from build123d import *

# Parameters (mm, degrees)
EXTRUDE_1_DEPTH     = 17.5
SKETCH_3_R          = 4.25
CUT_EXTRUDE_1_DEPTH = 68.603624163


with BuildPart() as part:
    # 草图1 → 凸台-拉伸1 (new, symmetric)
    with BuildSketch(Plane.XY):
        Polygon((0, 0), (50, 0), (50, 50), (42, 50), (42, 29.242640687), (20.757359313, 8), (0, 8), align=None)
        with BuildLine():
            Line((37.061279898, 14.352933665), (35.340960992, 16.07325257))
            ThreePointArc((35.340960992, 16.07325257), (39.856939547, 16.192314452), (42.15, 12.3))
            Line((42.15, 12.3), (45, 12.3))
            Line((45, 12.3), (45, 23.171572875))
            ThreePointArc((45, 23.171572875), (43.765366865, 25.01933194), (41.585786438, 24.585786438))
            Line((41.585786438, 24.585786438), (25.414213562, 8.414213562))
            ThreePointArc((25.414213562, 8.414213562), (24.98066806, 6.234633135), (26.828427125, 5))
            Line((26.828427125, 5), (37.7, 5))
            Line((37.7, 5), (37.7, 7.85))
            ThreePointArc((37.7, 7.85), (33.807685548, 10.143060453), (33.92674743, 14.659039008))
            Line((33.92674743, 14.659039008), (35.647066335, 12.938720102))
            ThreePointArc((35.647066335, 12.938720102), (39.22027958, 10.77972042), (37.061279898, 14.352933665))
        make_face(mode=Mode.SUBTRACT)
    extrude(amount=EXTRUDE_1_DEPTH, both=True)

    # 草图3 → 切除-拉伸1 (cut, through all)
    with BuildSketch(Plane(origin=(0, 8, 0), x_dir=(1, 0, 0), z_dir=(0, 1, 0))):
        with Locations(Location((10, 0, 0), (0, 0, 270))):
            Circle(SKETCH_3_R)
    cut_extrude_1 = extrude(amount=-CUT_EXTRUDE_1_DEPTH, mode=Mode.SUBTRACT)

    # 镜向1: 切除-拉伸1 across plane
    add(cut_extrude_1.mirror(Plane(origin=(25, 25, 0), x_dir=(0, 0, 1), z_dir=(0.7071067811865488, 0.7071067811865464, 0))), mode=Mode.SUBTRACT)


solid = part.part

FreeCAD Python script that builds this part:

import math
import FreeCAD as App
import Part
import Sketcher


def add_polygon(sketch, points):
    """Adds a closed chain of lines whose ends are joined by coincident constraints."""
    first, n = sketch.GeometryCount, len(points)
    for a, b in zip(points, points[1:] + points[:1]):
        sketch.addGeometry(Part.LineSegment(App.Vector(*a, 0), App.Vector(*b, 0)), False)
    for i in range(n):
        sketch.addConstraint(Sketcher.Constraint("Coincident", first + i, 2, first + (i + 1) % n, 1))

doc = App.newDocument("Part")
params = doc.addObject("Spreadsheet::Sheet", "Params")
for row, (alias, value) in enumerate([
    ("sketch1_radius", "2 mm"),
    ("sketch1_width", "50 mm"),
    ("sketch1_width2", "8 mm"),
    ("sketch1_radius2", "2.15 mm"),
    ("sketch1_radius3", "4.45 mm"),
    ("pad1_length", "35 mm"),
    ("sketch2_diameter", "8.5 mm"),
], start=1):
    params.set(f"A{row}", alias)
    params.set(f"B{row}", "=" + value)
    params.setAlias(f"B{row}", alias)

body = doc.addObject("PartDesign::Body", "Body")

# Sketch on XY plane
sketch1 = doc.addObject("Sketcher::SketchObject", "Sketch")
body.addObject(sketch1)
sketch1.AttachmentSupport = (doc.XY_Plane, [""])
sketch1.MapMode = "FlatFace"
add_polygon(sketch1, [(0, 0), (50, 0), (50, 50), (42, 50), (42, 29.2), (20.8, 8), (0, 8)])  # lines 0-6
sketch1.addGeometry(Part.LineSegment(App.Vector(35.3, 16.1, 0), App.Vector(37.1, 14.4, 0)), False)  # 7
sketch1.addGeometry(Part.ArcOfCircle(Part.Circle(App.Vector(37.7, 12.3, 0), App.Vector(0, 0, 1), 2.1), math.radians(163), math.radians(467)), False)  # 8
sketch1.addGeometry(Part.LineSegment(App.Vector(35.6, 12.9, 0), App.Vector(33.9, 14.7, 0)), False)  # 9
sketch1.addGeometry(Part.ArcOfCircle(Part.Circle(App.Vector(37.7, 12.3, 0), App.Vector(0, 0, 1), 4.5), math.radians(148), math.radians(270)), False)  # 10
sketch1.addGeometry(Part.LineSegment(App.Vector(37.7, 7.8, 0), App.Vector(37.7, 5, 0)), False)  # 11
sketch1.addGeometry(Part.LineSegment(App.Vector(37.7, 5, 0), App.Vector(26.8, 5, 0)), False)  # 12
sketch1.addGeometry(Part.ArcOfCircle(Part.Circle(App.Vector(26.8, 7, 0), App.Vector(0, 0, 1), 2), math.radians(135), math.radians(270)), False)  # 13
sketch1.addGeometry(Part.LineSegment(App.Vector(25.4, 8.4, 0), App.Vector(41.6, 24.6, 0)), False)  # 14
sketch1.addGeometry(Part.ArcOfCircle(Part.Circle(App.Vector(43, 23.2, 0), App.Vector(0, 0, 1), 2), math.radians(0), math.radians(135)), False)  # 15
sketch1.addGeometry(Part.LineSegment(App.Vector(45, 23.2, 0), App.Vector(45, 12.3, 0)), False)  # 16
sketch1.addGeometry(Part.LineSegment(App.Vector(45, 12.3, 0), App.Vector(42.1, 12.3, 0)), False)  # 17
sketch1.addGeometry(Part.ArcOfCircle(Part.Circle(App.Vector(37.7, 12.3, 0), App.Vector(0, 0, 1), 4.5), math.radians(0), math.radians(122)), False)  # 18
sketch1.addConstraint([
    Sketcher.Constraint("Coincident", 7, 2, 8, 2),
    Sketcher.Constraint("Coincident", 8, 1, 9, 1),
    Sketcher.Constraint("Coincident", 9, 2, 10, 1),
    Sketcher.Constraint("Coincident", 10, 2, 11, 1),
    Sketcher.Constraint("Coincident", 11, 2, 12, 1),
    Sketcher.Constraint("Tangent", 12, 2, 13, 2),
    Sketcher.Constraint("Tangent", 13, 1, 14, 1),
    Sketcher.Constraint("Tangent", 14, 2, 15, 2),
    Sketcher.Constraint("Tangent", 15, 1, 16, 1),
    Sketcher.Constraint("Coincident", 16, 2, 17, 1),
    Sketcher.Constraint("Coincident", 17, 2, 18, 1),
    Sketcher.Constraint("Coincident", 18, 2, 7, 1),
    Sketcher.Constraint("Horizontal", 0),
    Sketcher.Constraint("Vertical", 1),
    Sketcher.Constraint("Horizontal", 2),
    Sketcher.Constraint("Vertical", 3),
    Sketcher.Constraint("Horizontal", 5),
    Sketcher.Constraint("Vertical", 6),
    Sketcher.Constraint("Vertical", 11),
    Sketcher.Constraint("Horizontal", 12),
    Sketcher.Constraint("Vertical", 16),
    Sketcher.Constraint("Horizontal", 17),
    Sketcher.Constraint("Coincident", 6, 2, -1, 1),
    Sketcher.Constraint("Coincident", 10, 3, 8, 3),
    Sketcher.Constraint("Coincident", 18, 3, 8, 3),
    Sketcher.Constraint("Equal", 13, 15),
    Sketcher.Constraint("Equal", 10, 18),
    Sketcher.Constraint("Perpendicular", 4, 7),
    Sketcher.Constraint("Parallel", 7, 9),
    Sketcher.Constraint("Perpendicular", 9, 14),
    Sketcher.Constraint("Horizontal", 18, 3, 16, 2),
    Sketcher.Constraint("Vertical", 18, 3, 10, 2),
    Sketcher.Constraint("Equal", 0, 1),
    Sketcher.Constraint("Equal", 5, 3),
    Sketcher.Constraint("Equal", 2, 6),
    Sketcher.Constraint("Equal", 17, 11),
    Sketcher.Constraint("Equal", 7, 9),
    Sketcher.Constraint("Radius", 13, 2.0),
    Sketcher.Constraint("DistanceX", 0, 1, 0, 2, 50.0),
    Sketcher.Constraint("DistanceX", 2, 2, 2, 1, 8.0),
    Sketcher.Constraint("Radius", 8, 2.15),
    Sketcher.Constraint("Radius", 10, 4.45),
    Sketcher.Constraint("DistanceY", -1, 1, 13, 3, 7.0),
    Sketcher.Constraint("DistanceX", -1, 1, 15, 3, 43.0),
    Sketcher.Constraint("DistanceX", 17, 2, 17, 1, 2.85),
    Sketcher.Constraint("Distance", 7, 2.432898),
    Sketcher.Constraint("DistanceX", 5, 2, 5, 1, 20.757359),
    Sketcher.Constraint("DistanceX", 12, 2, 12, 1, 10.871573),
])
sketch1.setExpression("Constraints[44]", "Params.sketch1_radius")
sketch1.setExpression("Constraints[45]", "Params.sketch1_width")
sketch1.setExpression("Constraints[46]", "Params.sketch1_width2")
sketch1.setExpression("Constraints[47]", "Params.sketch1_radius2")
sketch1.setExpression("Constraints[48]", "Params.sketch1_radius3")
pad1 = doc.addObject("PartDesign::Pad", "Pad")
body.addObject(pad1)
pad1.Profile = sketch1
pad1.setExpression("Length", "Params.pad1_length")
pad1.Midplane = True

# Sketch on XZ plane
sketch2 = doc.addObject("Sketcher::SketchObject", "Sketch001")
body.addObject(sketch2)
sketch2.AttachmentSupport = (doc.XZ_Plane, [""])
sketch2.MapMode = "FlatFace"
sketch2.AttachmentOffset = App.Placement(App.Vector(0, 0, -8), App.Rotation())
sketch2.addGeometry(Part.Circle(App.Vector(10, 0, 0), App.Vector(0, 0, 1), 4.2), False)
sketch2.addConstraint([
    Sketcher.Constraint("PointOnObject", 0, 3, -1),
    Sketcher.Constraint("Diameter", 0, 8.5),
    Sketcher.Constraint("DistanceX", -1, 1, 0, 3, 10.0),
])
sketch2.setExpression("Constraints[1]", "Params.sketch2_diameter")
pocket1 = doc.addObject("PartDesign::Pocket", "Pocket")
body.addObject(pocket1)
pocket1.Profile = sketch2
pocket1.Type = "ThroughAll"
pocket1.Reversed = True
doc.recompute()

datumplane = doc.addObject("PartDesign::Plane", "DatumPlane")
body.addObject(datumplane)
datumplane.Placement = App.Placement(App.Vector(25, 25, 0), App.Rotation(App.Vector(0.707106781, -0.707106781, 0), App.Vector(0, 0, -1), App.Vector(0.707106781, 0.707106781, 0), "ZXY"))
mirrored = doc.addObject("PartDesign::Mirrored", "Mirrored")
body.addObject(mirrored)
mirrored.Originals = [pocket1]
mirrored.MirrorPlane = (datumplane, [""])
body.Tip = mirrored

doc.recompute()
